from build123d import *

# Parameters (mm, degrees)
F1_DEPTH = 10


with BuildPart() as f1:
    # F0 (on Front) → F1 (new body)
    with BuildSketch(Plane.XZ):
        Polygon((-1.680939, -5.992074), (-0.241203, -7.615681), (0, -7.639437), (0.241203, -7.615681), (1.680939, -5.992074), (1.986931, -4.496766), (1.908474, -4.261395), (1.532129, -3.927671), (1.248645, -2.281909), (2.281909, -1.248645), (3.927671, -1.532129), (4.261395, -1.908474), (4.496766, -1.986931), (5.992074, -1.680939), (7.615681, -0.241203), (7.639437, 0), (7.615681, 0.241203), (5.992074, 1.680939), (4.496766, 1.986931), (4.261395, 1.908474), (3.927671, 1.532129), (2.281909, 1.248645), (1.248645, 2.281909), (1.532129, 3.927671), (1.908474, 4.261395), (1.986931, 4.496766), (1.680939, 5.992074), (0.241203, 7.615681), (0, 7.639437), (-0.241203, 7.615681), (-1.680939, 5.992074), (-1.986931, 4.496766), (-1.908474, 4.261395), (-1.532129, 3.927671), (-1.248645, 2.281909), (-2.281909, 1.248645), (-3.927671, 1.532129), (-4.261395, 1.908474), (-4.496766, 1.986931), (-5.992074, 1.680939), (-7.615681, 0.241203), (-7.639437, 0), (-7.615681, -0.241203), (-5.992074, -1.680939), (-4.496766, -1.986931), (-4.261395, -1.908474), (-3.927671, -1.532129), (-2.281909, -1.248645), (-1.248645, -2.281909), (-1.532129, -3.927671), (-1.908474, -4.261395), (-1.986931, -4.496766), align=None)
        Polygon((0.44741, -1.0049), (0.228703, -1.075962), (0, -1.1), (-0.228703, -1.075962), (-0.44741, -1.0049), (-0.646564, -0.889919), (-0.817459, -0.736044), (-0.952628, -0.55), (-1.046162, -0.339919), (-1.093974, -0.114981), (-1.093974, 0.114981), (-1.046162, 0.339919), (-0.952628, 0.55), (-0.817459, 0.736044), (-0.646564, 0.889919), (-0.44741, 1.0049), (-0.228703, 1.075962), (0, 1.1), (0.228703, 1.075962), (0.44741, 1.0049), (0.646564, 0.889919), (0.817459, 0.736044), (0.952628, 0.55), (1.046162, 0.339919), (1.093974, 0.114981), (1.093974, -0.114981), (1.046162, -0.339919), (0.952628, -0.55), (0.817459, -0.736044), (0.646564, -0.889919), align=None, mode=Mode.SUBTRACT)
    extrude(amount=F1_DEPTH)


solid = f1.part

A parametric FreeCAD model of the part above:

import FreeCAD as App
import Part
import Sketcher

V = App.Vector
Q = App.Units.Quantity


def add_polygon(sketch, points):
    """Adds a closed chain of lines whose ends are joined by coincident constraints."""
    first, n = sketch.GeometryCount, len(points)
    for a, b in zip(points, points[1:] + points[:1]):
        sketch.addGeometry(Part.LineSegment(App.Vector(*a, 0), App.Vector(*b, 0)), False)
    for i in range(n):
        sketch.addConstraint(Sketcher.Constraint("Coincident", first + i, 2, first + (i + 1) % n, 1))

doc = App.newDocument("Part")
body = doc.addObject("PartDesign::Body", "Body")

# Sketch on XZ plane
sketch1 = body.newObject("Sketcher::SketchObject", "Sketch")
sketch1.AttachmentSupport = (doc.getObject("XZ_Plane"), [""])
sketch1.MapMode = "FlatFace"
add_polygon(sketch1, [(-1.68, -5.99), (-0.24, -7.62), (0, -7.64), (0.24, -7.62), (1.68, -5.99), (1.99, -4.5), (1.91, -4.26), (1.53, -3.93), (1.25, -2.28), (2.28, -1.25), (3.93, -1.53), (4.26, -1.91), (4.5, -1.99), (5.99, -1.68), (7.62, -0.24), (7.64, 0), (7.62, 0.24), (5.99, 1.68), (4.5, 1.99), (4.26, 1.91), (3.93, 1.53), (2.28, 1.25), (1.25, 2.28), (1.53, 3.93), (1.91, 4.26), (1.99, 4.5), (1.68, 5.99), (0.24, 7.62), (0, 7.64), (-0.24, 7.62), (-1.68, 5.99), (-1.99, 4.5), (-1.91, 4.26), (-1.53, 3.93), (-1.25, 2.28), (-2.28, 1.25), (-3.93, 1.53), (-4.26, 1.91), (-4.5, 1.99), (-5.99, 1.68), (-7.62, 0.24), (-7.64, 0), (-7.62, -0.24), (-5.99, -1.68), (-4.5, -1.99), (-4.26, -1.91), (-3.93, -1.53), (-2.28, -1.25), (-1.25, -2.28), (-1.53, -3.93), (-1.91, -4.26), (-1.99, -4.5)])  # lines 0-51
add_polygon(sketch1, [(0.65, -0.89), (0.45, -1), (0.23, -1.08), (0, -1.1), (-0.23, -1.08), (-0.45, -1), (-0.65, -0.89), (-0.82, -0.74), (-0.95, -0.55), (-1.05, -0.34), (-1.09, -0.11), (-1.09, 0.11), (-1.05, 0.34), (-0.95, 0.55), (-0.82, 0.74), (-0.65, 0.89), (-0.45, 1), (-0.23, 1.08), (0, 1.1), (0.23, 1.08), (0.45, 1), (0.65, 0.89), (0.82, 0.74), (0.95, 0.55), (1.05, 0.34), (1.09, 0.11), (1.09, -0.11), (1.05, -0.34), (0.95, -0.55), (0.82, -0.74)])  # lines 52-81
sketch1.addConstraint([
    Sketcher.Constraint("Vertical", 62),
    Sketcher.Constraint("Vertical", 77),
    Sketcher.Constraint("Symmetric", 0, 2, 26, 2, -1, 1),
    Sketcher.Constraint("Symmetric", 1, 2, 27, 2, -1, 1),
    Sketcher.Constraint("Symmetric", 2, 2, 28, 2, -1, 1),
    Sketcher.Constraint("Symmetric", 3, 2, 29, 2, -1, 1),
    Sketcher.Constraint("Symmetric", 4, 2, 30, 2, -1, 1),
    Sketcher.Constraint("Symmetric", 5, 2, 31, 2, -1, 1),
    Sketcher.Constraint("Symmetric", 6, 2, 32, 2, -1, 1),
    Sketcher.Constraint("Symmetric", 7, 2, 33, 2, -1, 1),
    Sketcher.Constraint("Symmetric", 8, 2, 34, 2, -1, 1),
    Sketcher.Constraint("Symmetric", 9, 2, 35, 2, -1, 1),
    Sketcher.Constraint("Symmetric", 10, 2, 36, 2, -1, 1),
    Sketcher.Constraint("Symmetric", 11, 2, 37, 2, -1, 1),
    Sketcher.Constraint("Symmetric", 12, 2, 38, 2, -1, 1),
    Sketcher.Constraint("Symmetric", 13, 2, 39, 2, -1, 1),
    Sketcher.Constraint("Symmetric", 14, 2, 40, 2, -1, 1),
    Sketcher.Constraint("Symmetric", 15, 2, 41, 2, -1, 1),
    Sketcher.Constraint("Symmetric", 16, 2, 42, 2, -1, 1),
    Sketcher.Constraint("Symmetric", 17, 2, 43, 2, -1, 1),
    Sketcher.Constraint("Symmetric", 18, 2, 44, 2, -1, 1),
    Sketcher.Constraint("Symmetric", 19, 2, 45, 2, -1, 1),
    Sketcher.Constraint("Symmetric", 20, 2, 46, 2, -1, 1),
    Sketcher.Constraint("Symmetric", 21, 2, 47, 2, -1, 1),
    Sketcher.Constraint("Symmetric", 22, 2, 48, 2, -1, 1),
    Sketcher.Constraint("Symmetric", 23, 2, 49, 2, -1, 1),
    Sketcher.Constraint("Symmetric", 24, 2, 50, 2, -1, 1),
    Sketcher.Constraint("Symmetric", 25, 2, 51, 2, -1, 1),
    Sketcher.Constraint("Symmetric", 52, 2, 67, 2, -1, 1),
    Sketcher.Constraint("Symmetric", 53, 2, 68, 2, -1, 1),
    Sketcher.Constraint("Symmetric", 54, 2, 69, 2, -1, 1),
    Sketcher.Constraint("Symmetric", 55, 2, 70, 2, -1, 1),
    Sketcher.Constraint("Symmetric", 56, 2, 71, 2, -1, 1),
    Sketcher.Constraint("Symmetric", 57, 2, 72, 2, -1, 1),
    Sketcher.Constraint("Symmetric", 58, 2, 73, 2, -1, 1),
    Sketcher.Constraint("Symmetric", 59, 2, 74, 2, -1, 1),
    Sketcher.Constraint("Symmetric", 60, 2, 75, 2, -1, 1),
    Sketcher.Constraint("Symmetric", 61, 2, 76, 2, -1, 1),
    Sketcher.Constraint("Symmetric", 63, 2, 78, 2, -1, 1),
    Sketcher.Constraint("Symmetric", 64, 2, 79, 2, -1, 1),
    Sketcher.Constraint("Symmetric", 65, 2, 80, 2, -1, 1),
    Sketcher.Constraint("Symmetric", 66, 2, 81, 2, -1, 1),
    Sketcher.Constraint("Symmetric", 0, 2, 2, 2, -2),
    Sketcher.Constraint("Symmetric", 25, 2, 29, 2, -2),
    Sketcher.Constraint("Symmetric", 24, 2, 30, 2, -2),
    Sketcher.Constraint("Symmetric", 23, 2, 31, 2, -2),
    Sketcher.Constraint("Symmetric", 22, 2, 32, 2, -2),
    Sketcher.Constraint("Symmetric", 21, 2, 33, 2, -2),
    Sketcher.Constraint("Symmetric", 20, 2, 34, 2, -2),
    Sketcher.Constraint("Symmetric", 19, 2, 35, 2, -2),
    Sketcher.Constraint("Symmetric", 18, 2, 36, 2, -2),
    Sketcher.Constraint("Symmetric", 17, 2, 37, 2, -2),
    Sketcher.Constraint("Symmetric", 16, 2, 38, 2, -2),
    Sketcher.Constraint("Symmetric", 15, 2, 39, 2, -2),
    Sketcher.Constraint("Symmetric", 53, 2, 55, 2, -2),
    Sketcher.Constraint("Symmetric", 52, 2, 56, 2, -2),
    Sketcher.Constraint("Symmetric", 66, 2, 72, 2, -2),
    Sketcher.Constraint("Symmetric", 65, 2, 73, 2, -2),
    Sketcher.Constraint("Symmetric", 64, 2, 74, 2, -2),
    Sketcher.Constraint("Symmetric", 63, 2, 75, 2, -2),
    Sketcher.Constraint("PointOnObject", 1, 2, -2),
    Sketcher.Constraint("PointOnObject", 14, 2, -1),
    Sketcher.Constraint("PointOnObject", 54, 2, -2),
    Sketcher.Constraint("Perpendicular", 3, 6),
    Sketcher.Constraint("Parallel", 0, 10),
    Sketcher.Constraint("Perpendicular", 10, 13),
    Sketcher.Constraint("Perpendicular", 1, 14),
    Sketcher.Constraint("Perpendicular", 4, 17),
    Sketcher.Constraint("Perpendicular", 5, 18),
    Sketcher.Constraint("Perpendicular", 7, 20),
    Sketcher.Constraint("Perpendicular", 8, 21),
    Sketcher.Constraint("Parallel", 63, 78),
    Sketcher.Constraint("Horizontal", 62, 2, 76, 2),
    Sketcher.Constraint("Equal", 7, 9),
    Sketcher.Constraint("Equal", 6, 10),
    Sketcher.Constraint("Equal", 5, 11),
    Sketcher.Constraint("Equal", 4, 12),
    Sketcher.Constraint("Equal", 3, 13),
    Sketcher.Constraint("Equal", 2, 14),
    Sketcher.Constraint("Equal", 52, 53),
    Sketcher.Constraint("Equal", 53, 54),
    Sketcher.Constraint("Equal", 57, 58),
    Sketcher.Constraint("Equal", 58, 59),
    Sketcher.Constraint("Equal", 59, 60),
    Sketcher.Constraint("Equal", 60, 61),
    Sketcher.Constraint("Angle", 60, Q("113.99998 deg")),
    Sketcher.Constraint("Angle", 61, Q("101.999988 deg")),
    Sketcher.Constraint("DistanceY", 54, 2, -1, 1, Q("1.1 mm")),
    Sketcher.Constraint("Distance", 7, Q("1.669999 mm")),
    Sketcher.Constraint("DistanceY", 59, 2, -1, 1, Q("0.55 mm")),
    Sketcher.Constraint("Distance", 6, Q("0.502998 mm")),
    Sketcher.Constraint("DistanceY", 52, 2, -1, 1, Q("1.0049 mm")),
    Sketcher.Constraint("Distance", 0, Q("2.170009 mm")),
    Sketcher.Constraint("Distance", 1, Q("0.24237 mm")),
    Sketcher.Constraint("DistanceY", 62, 1, 62, 2, Q("0.229962 mm")),
    Sketcher.Constraint("DistanceY", 0, 2, -1, 1, Q("7.615681 mm")),
    Sketcher.Constraint("DistanceX", -1, 1, 3, 2, Q("1.680939 mm")),
    Sketcher.Constraint("DistanceX", -1, 1, 4, 2, Q("1.986931 mm")),
    Sketcher.Constraint("DistanceX", -1, 1, 6, 2, Q("1.532129 mm")),
    Sketcher.Constraint("DistanceY", 6, 2, -1, 1, Q("3.927671 mm")),
    Sketcher.Constraint("DistanceY", 7, 2, -1, 1, Q("2.281909 mm")),
    Sketcher.Constraint("DistanceX", -1, 1, 52, 2, Q("0.44741 mm")),
    Sketcher.Constraint("DistanceY", 57, 2, -1, 1, Q("0.889919 mm")),
    Sketcher.Constraint("DistanceX", 58, 2, -1, 1, Q("0.817459 mm")),
    Sketcher.Constraint("Distance", 4, Q("1.526295 mm")),
    Sketcher.Constraint("Distance", 5, Q("0.248103 mm")),
])
pad1 = body.newObject("PartDesign::Pad", "Pad")
pad1.Profile = sketch1
pad1.Length = 10

doc.recompute()
